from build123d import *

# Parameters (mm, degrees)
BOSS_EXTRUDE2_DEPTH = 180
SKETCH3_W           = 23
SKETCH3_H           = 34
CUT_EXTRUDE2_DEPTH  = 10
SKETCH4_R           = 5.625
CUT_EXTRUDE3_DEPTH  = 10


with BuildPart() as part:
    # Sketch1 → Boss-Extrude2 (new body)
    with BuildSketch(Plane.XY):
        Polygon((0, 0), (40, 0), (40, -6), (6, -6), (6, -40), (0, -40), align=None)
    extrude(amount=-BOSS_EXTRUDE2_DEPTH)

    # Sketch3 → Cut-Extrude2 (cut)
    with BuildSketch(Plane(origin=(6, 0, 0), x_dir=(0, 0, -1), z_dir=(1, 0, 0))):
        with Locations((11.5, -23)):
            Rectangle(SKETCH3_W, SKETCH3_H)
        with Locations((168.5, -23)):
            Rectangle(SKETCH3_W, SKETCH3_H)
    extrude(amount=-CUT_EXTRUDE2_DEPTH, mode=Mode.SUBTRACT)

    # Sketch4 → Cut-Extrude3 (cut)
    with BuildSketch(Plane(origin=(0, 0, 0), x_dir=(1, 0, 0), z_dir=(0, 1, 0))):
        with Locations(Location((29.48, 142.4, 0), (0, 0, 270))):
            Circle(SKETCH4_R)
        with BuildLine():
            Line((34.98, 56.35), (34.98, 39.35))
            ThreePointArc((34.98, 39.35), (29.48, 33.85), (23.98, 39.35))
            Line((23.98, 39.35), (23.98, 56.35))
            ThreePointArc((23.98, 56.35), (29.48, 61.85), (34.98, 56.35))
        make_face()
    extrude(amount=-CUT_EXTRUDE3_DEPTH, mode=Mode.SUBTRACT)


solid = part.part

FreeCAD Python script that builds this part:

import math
import FreeCAD as App
import Part
import Sketcher
from FreeCAD import Vector


def add_polygon(sketch, points):
    """Adds a closed chain of lines whose ends are joined by coincident constraints."""
    first, n = sketch.GeometryCount, len(points)
    for a, b in zip(points, points[1:] + points[:1]):
        sketch.addGeometry(Part.LineSegment(App.Vector(*a, 0), App.Vector(*b, 0)), False)
    for i in range(n):
        sketch.addConstraint(Sketcher.Constraint("Coincident", first + i, 2, first + (i + 1) % n, 1))

doc = App.newDocument("Part")
body = doc.addObject("PartDesign::Body", "Body")

# Sketch on XY plane
sketch1 = body.newObject("Sketcher::SketchObject", "Sketch")
sketch1.AttachmentSupport = (doc.getObject("XY_Plane"), [""])
sketch1.MapMode = "FlatFace"
add_polygon(sketch1, [(40, 0), (0, 0), (0, -40), (6, -40), (6, -6), (40, -6)])  # lines 0-5
sketch1.addConstraint(Sketcher.Constraint("Horizontal", 0))
sketch1.addConstraint(Sketcher.Constraint("Vertical", 1))
sketch1.addConstraint(Sketcher.Constraint("Horizontal", 2))
sketch1.addConstraint(Sketcher.Constraint("Vertical", 3))
sketch1.addConstraint(Sketcher.Constraint("Horizontal", 4))
sketch1.addConstraint(Sketcher.Constraint("Vertical", 5))
sketch1.addConstraint(Sketcher.Constraint("Coincident", 0, 2, -1, 1))
sketch1.addConstraint(Sketcher.Constraint("Equal", 0, 1))
sketch1.addConstraint(Sketcher.Constraint("Equal", 4, 3))
sketch1.addConstraint(Sketcher.Constraint("DistanceX", 0, 2, 0, 1, 40.0))
sketch1.addConstraint(Sketcher.Constraint("DistanceX", 2, 1, 2, 2, 6.0))
pad1 = body.newObject("PartDesign::Pad", "Pad")
pad1.Profile = sketch1
pad1.Length = 180
pad1.Reversed = True

# Sketch on YZ plane
sketch2 = body.newObject("Sketcher::SketchObject", "Sketch001")
sketch2.AttachmentSupport = (doc.getObject("YZ_Plane"), [""])
sketch2.MapMode = "FlatFace"
sketch2.AttachmentOffset = App.Placement(Vector(0, 0, 6), App.Rotation())
add_polygon(sketch2, [(-6, 0), (-40, 0), (-40, -23), (-6, -23)])  # lines 0-3
add_polygon(sketch2, [(-6, -157), (-40, -157), (-40, -180), (-6, -180)])  # lines 4-7
sketch2.addConstraint(Sketcher.Constraint("Horizontal", 0))
sketch2.addConstraint(Sketcher.Constraint("Vertical", 1))
sketch2.addConstraint(Sketcher.Constraint("Horizontal", 2))
sketch2.addConstraint(Sketcher.Constraint("Vertical", 3))
sketch2.addConstraint(Sketcher.Constraint("Horizontal", 4))
sketch2.addConstraint(Sketcher.Constraint("Vertical", 5))
sketch2.addConstraint(Sketcher.Constraint("Horizontal", 6))
sketch2.addConstraint(Sketcher.Constraint("Vertical", 7))
sketch2.addConstraint(Sketcher.Constraint("PointOnObject", 0, 2, -1))
sketch2.addConstraint(Sketcher.Constraint("Vertical", 1, 2, 4, 2))
sketch2.addConstraint(Sketcher.Constraint("Vertical", 3, 2, 6, 2))
sketch2.addConstraint(Sketcher.Constraint("Equal", 3, 5))
sketch2.addConstraint(Sketcher.Constraint("DistanceX", 0, 2, 0, 1, 34.0))
sketch2.addConstraint(Sketcher.Constraint("DistanceY", 1, 2, 1, 1, 23.0))
sketch2.addConstraint(Sketcher.Constraint("DistanceX", 0, 2, -1, 1, 40.0))
sketch2.addConstraint(Sketcher.Constraint("DistanceY", 4, 2, -1, 1, 157.0))
pocket1 = body.newObject("PartDesign::Pocket", "Pocket")
pocket1.Profile = sketch2
pocket1.Length = 10

# Sketch on XZ plane
sketch3 = body.newObject("Sketcher::SketchObject", "Sketch002")
sketch3.AttachmentSupport = (doc.getObject("XZ_Plane"), [""])
sketch3.MapMode = "FlatFace"
sketch3.addGeometry(Part.Circle(Vector(29, -142, 0), Vector(0, 0, 1), 6), False)
sketch3.addGeometry(Part.LineSegment(Vector(35, -39, 0), Vector(35, -56, 0)), False)
sketch3.addGeometry(Part.ArcOfCircle(Part.Circle(Vector(29, -56, 0), Vector(0, 0, 1), 6), math.radians(180), math.radians(360)), False)
sketch3.addGeometry(Part.LineSegment(Vector(24, -56, 0), Vector(24, -39, 0)), False)
sketch3.addGeometry(Part.ArcOfCircle(Part.Circle(Vector(29, -39, 0), Vector(0, 0, 1), 6), math.radians(0), math.radians(180)), False)
sketch3.addConstraint(Sketcher.Constraint("Tangent", 1, 2, 2, 2))
sketch3.addConstraint(Sketcher.Constraint("Tangent", 2, 1, 3, 1))
sketch3.addConstraint(Sketcher.Constraint("Tangent", 3, 2, 4, 2))
sketch3.addConstraint(Sketcher.Constraint("Tangent", 4, 1, 1, 1))
sketch3.addConstraint(Sketcher.Constraint("Vertical", 1))
sketch3.addConstraint(Sketcher.Constraint("Vertical", 3))
sketch3.addConstraint(Sketcher.Constraint("Vertical", 0, 3, 2, 3))
sketch3.addConstraint(Sketcher.Constraint("Radius", 2, 5.5))
sketch3.addConstraint(Sketcher.Constraint("Diameter", 0, 11.25))
sketch3.addConstraint(Sketcher.Constraint("DistanceY", 1, 2, 1, 1, 17.0))
sketch3.addConstraint(Sketcher.Constraint("DistanceY", 0, 3, -1, 1, 142.4))
sketch3.addConstraint(Sketcher.Constraint("DistanceX", -1, 1, 0, 3, 29.48))
sketch3.addConstraint(Sketcher.Constraint("DistanceY", 2, 3, -1, 1, 56.35))
pocket2 = body.newObject("PartDesign::Pocket", "Pocket001")
pocket2.Profile = sketch3
pocket2.Length = 10
pocket2.Reversed = True

doc.recompute()
